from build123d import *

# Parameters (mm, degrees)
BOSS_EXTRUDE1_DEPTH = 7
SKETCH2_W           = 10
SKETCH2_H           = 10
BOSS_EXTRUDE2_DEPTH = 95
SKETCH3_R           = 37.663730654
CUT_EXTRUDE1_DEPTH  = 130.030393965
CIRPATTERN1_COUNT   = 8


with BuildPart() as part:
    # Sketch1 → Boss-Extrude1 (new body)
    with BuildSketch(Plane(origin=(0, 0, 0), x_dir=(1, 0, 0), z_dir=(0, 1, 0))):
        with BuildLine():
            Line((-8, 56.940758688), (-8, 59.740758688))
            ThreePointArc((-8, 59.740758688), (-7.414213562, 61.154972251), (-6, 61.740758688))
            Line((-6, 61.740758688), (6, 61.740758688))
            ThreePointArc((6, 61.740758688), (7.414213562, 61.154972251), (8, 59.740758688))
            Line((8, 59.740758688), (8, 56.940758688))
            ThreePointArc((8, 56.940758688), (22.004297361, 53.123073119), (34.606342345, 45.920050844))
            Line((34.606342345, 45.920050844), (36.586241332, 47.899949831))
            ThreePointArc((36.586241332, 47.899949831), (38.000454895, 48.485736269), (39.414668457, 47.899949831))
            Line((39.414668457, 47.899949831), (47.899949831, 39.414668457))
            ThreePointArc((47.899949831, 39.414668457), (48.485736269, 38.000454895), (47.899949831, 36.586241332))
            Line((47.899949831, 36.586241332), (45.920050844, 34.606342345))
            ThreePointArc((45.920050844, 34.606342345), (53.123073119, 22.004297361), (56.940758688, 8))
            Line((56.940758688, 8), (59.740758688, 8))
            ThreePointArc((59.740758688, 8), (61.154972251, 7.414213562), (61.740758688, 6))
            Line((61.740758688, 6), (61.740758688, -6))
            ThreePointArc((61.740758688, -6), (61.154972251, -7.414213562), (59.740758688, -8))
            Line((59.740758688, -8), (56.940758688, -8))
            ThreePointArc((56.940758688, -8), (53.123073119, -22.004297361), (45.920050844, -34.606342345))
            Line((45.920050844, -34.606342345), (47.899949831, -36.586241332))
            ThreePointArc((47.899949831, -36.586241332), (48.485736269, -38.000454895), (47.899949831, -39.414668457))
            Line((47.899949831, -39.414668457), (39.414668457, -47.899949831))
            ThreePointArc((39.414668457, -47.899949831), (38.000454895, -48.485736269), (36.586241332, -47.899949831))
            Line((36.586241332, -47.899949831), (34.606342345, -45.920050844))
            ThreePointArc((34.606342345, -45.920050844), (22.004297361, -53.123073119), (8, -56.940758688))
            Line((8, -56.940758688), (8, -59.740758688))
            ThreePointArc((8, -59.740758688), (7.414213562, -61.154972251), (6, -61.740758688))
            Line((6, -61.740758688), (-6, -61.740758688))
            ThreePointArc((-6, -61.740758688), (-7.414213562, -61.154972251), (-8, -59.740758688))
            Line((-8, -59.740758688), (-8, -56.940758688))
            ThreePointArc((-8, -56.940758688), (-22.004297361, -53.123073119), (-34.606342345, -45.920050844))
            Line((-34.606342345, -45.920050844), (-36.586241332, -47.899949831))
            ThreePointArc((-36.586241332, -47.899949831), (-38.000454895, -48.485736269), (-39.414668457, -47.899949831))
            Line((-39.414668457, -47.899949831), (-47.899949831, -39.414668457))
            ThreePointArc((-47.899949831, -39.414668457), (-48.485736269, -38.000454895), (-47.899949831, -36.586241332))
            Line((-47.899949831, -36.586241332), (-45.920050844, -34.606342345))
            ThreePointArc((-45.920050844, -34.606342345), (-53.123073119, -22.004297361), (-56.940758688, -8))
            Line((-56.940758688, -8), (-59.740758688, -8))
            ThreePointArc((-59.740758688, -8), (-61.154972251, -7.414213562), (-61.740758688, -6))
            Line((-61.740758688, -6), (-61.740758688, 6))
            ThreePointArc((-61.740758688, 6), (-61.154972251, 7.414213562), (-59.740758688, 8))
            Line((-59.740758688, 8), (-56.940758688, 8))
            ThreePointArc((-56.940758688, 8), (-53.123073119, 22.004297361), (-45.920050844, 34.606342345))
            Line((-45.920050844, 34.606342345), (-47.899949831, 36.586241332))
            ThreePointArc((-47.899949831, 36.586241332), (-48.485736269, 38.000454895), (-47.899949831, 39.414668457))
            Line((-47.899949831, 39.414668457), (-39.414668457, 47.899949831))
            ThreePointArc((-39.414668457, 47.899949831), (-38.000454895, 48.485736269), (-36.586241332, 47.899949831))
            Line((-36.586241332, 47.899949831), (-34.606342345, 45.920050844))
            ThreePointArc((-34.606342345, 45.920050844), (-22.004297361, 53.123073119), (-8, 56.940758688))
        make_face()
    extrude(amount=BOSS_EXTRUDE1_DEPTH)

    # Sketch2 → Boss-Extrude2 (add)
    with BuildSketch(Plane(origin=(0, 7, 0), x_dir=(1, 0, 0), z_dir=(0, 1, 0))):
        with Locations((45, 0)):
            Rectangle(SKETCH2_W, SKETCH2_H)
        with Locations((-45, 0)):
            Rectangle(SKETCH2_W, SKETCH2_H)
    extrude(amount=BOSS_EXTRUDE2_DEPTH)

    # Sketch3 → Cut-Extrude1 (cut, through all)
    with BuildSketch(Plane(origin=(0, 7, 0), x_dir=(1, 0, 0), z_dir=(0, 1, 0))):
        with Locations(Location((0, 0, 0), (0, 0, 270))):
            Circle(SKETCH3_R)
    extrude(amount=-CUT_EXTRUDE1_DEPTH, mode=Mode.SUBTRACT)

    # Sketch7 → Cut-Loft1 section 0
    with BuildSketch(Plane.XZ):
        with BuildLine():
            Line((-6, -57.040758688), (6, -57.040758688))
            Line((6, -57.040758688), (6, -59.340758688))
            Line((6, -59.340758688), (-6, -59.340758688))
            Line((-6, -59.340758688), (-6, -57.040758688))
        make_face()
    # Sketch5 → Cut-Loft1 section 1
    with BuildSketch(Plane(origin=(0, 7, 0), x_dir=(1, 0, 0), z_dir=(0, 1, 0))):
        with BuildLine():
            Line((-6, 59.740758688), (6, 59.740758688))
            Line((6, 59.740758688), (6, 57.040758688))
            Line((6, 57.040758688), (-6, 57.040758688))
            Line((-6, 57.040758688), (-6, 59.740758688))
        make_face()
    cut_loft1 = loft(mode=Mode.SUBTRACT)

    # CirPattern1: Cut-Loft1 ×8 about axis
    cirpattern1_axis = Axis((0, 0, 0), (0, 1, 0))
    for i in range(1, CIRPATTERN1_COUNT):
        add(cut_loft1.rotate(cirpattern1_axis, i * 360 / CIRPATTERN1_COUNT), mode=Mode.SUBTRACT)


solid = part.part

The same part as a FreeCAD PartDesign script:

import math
import FreeCAD as App
import Part
import Sketcher

doc = App.newDocument("Part")
body = doc.addObject("PartDesign::Body", "Body")

sketch1 = body.newObject("Sketcher::SketchObject", "Sketch")
sketch1.AttachmentSupport = (doc.getObject("XZ_Plane"), [""])
sketch1.MapMode = "FlatFace"
sketch1.addGeometry([
    Part.LineSegment(App.Vector(-8, -59.7, 0), App.Vector(-8, -56.9, 0)),
    Part.ArcOfCircle(Part.Circle(App.Vector(0, 0, 0), App.Vector(0, 0, 1), 57.5), math.radians(-127), math.radians(-98)),
    Part.LineSegment(App.Vector(-34.6, -45.9, 0), App.Vector(-36.6, -47.9, 0)),
    Part.ArcOfCircle(Part.Circle(App.Vector(-38, -46.5, 0), App.Vector(0, 0, 1), 2), math.radians(-135), math.radians(-45)),
    Part.LineSegment(App.Vector(-39.4, -47.9, 0), App.Vector(-47.9, -39.4, 0)),
    Part.ArcOfCircle(Part.Circle(App.Vector(-46.5, -38, 0), App.Vector(0, 0, 1), 2), math.radians(135), math.radians(225)),
    Part.LineSegment(App.Vector(-47.9, -36.6, 0), App.Vector(-45.9, -34.6, 0)),
    Part.ArcOfCircle(Part.Circle(App.Vector(0, 0, 0), App.Vector(0, 0, 1), 57.5), math.radians(-172), math.radians(-143)),
    Part.LineSegment(App.Vector(-56.9, -8, 0), App.Vector(-59.7, -8, 0)),
    Part.ArcOfCircle(Part.Circle(App.Vector(-59.7, -6, 0), App.Vector(0, 0, 1), 2), math.radians(180), math.radians(270)),
    Part.LineSegment(App.Vector(-61.7, -6, 0), App.Vector(-61.7, 6, 0)),
    Part.ArcOfCircle(Part.Circle(App.Vector(-59.7, 6, 0), App.Vector(0, 0, 1), 2), math.radians(90), math.radians(180)),
    Part.LineSegment(App.Vector(-59.7, 8, 0), App.Vector(-56.9, 8, 0)),
    Part.ArcOfCircle(Part.Circle(App.Vector(0, 0, 0), App.Vector(0, 0, 1), 57.5), math.radians(143), math.radians(172)),
    Part.LineSegment(App.Vector(-45.9, 34.6, 0), App.Vector(-47.9, 36.6, 0)),
    Part.ArcOfCircle(Part.Circle(App.Vector(-46.5, 38, 0), App.Vector(0, 0, 1), 2), math.radians(135), math.radians(225)),
    Part.LineSegment(App.Vector(-47.9, 39.4, 0), App.Vector(-39.4, 47.9, 0)),
    Part.ArcOfCircle(Part.Circle(App.Vector(-38, 46.5, 0), App.Vector(0, 0, 1), 2), math.radians(45), math.radians(135)),
    Part.LineSegment(App.Vector(-36.6, 47.9, 0), App.Vector(-34.6, 45.9, 0)),
    Part.ArcOfCircle(Part.Circle(App.Vector(0, 0, 0), App.Vector(0, 0, 1), 57.5), math.radians(98), math.radians(127)),
    Part.LineSegment(App.Vector(-8, 56.9, 0), App.Vector(-8, 59.7, 0)),
    Part.ArcOfCircle(Part.Circle(App.Vector(-6, 59.7, 0), App.Vector(0, 0, 1), 2), math.radians(90), math.radians(180)),
    Part.LineSegment(App.Vector(-6, 61.7, 0), App.Vector(6, 61.7, 0)),
    Part.ArcOfCircle(Part.Circle(App.Vector(6, 59.7, 0), App.Vector(0, 0, 1), 2), math.radians(0), math.radians(90)),
    Part.LineSegment(App.Vector(8, 59.7, 0), App.Vector(8, 56.9, 0)),
    Part.ArcOfCircle(Part.Circle(App.Vector(0, 0, 0), App.Vector(0, 0, 1), 57.5), math.radians(53), math.radians(82)),
    Part.LineSegment(App.Vector(34.6, 45.9, 0), App.Vector(36.6, 47.9, 0)),
    Part.ArcOfCircle(Part.Circle(App.Vector(38, 46.5, 0), App.Vector(0, 0, 1), 2), math.radians(45), math.radians(135)),
    Part.LineSegment(App.Vector(39.4, 47.9, 0), App.Vector(47.9, 39.4, 0)),
    Part.ArcOfCircle(Part.Circle(App.Vector(46.5, 38, 0), App.Vector(0, 0, 1), 2), math.radians(-45), math.radians(45)),
    Part.LineSegment(App.Vector(47.9, 36.6, 0), App.Vector(45.9, 34.6, 0)),
    Part.ArcOfCircle(Part.Circle(App.Vector(0, 0, 0), App.Vector(0, 0, 1), 57.5), math.radians(8), math.radians(37)),
    Part.LineSegment(App.Vector(56.9, 8, 0), App.Vector(59.7, 8, 0)),
    Part.ArcOfCircle(Part.Circle(App.Vector(59.7, 6, 0), App.Vector(0, 0, 1), 2), math.radians(0), math.radians(90)),
    Part.LineSegment(App.Vector(61.7, 6, 0), App.Vector(61.7, -6, 0)),
    Part.ArcOfCircle(Part.Circle(App.Vector(59.7, -6, 0), App.Vector(0, 0, 1), 2), math.radians(-90), math.radians(0)),
    Part.LineSegment(App.Vector(59.7, -8, 0), App.Vector(56.9, -8, 0)),
    Part.ArcOfCircle(Part.Circle(App.Vector(0, 0, 0), App.Vector(0, 0, 1), 57.5), math.radians(-37), math.radians(-8)),
    Part.LineSegment(App.Vector(45.9, -34.6, 0), App.Vector(47.9, -36.6, 0)),
    Part.ArcOfCircle(Part.Circle(App.Vector(46.5, -38, 0), App.Vector(0, 0, 1), 2), math.radians(-45), math.radians(45)),
    Part.LineSegment(App.Vector(47.9, -39.4, 0), App.Vector(39.4, -47.9, 0)),
    Part.ArcOfCircle(Part.Circle(App.Vector(38, -46.5, 0), App.Vector(0, 0, 1), 2), math.radians(-135), math.radians(-45)),
    Part.LineSegment(App.Vector(36.6, -47.9, 0), App.Vector(34.6, -45.9, 0)),
    Part.ArcOfCircle(Part.Circle(App.Vector(0, 0, 0), App.Vector(0, 0, 1), 57.5), math.radians(-82), math.radians(-53)),
    Part.LineSegment(App.Vector(8, -56.9, 0), App.Vector(8, -59.7, 0)),
    Part.ArcOfCircle(Part.Circle(App.Vector(6, -59.7, 0), App.Vector(0, 0, 1), 2), math.radians(-90), math.radians(0)),
    Part.LineSegment(App.Vector(6, -61.7, 0), App.Vector(-6, -61.7, 0)),
    Part.ArcOfCircle(Part.Circle(App.Vector(-6, -59.7, 0), App.Vector(0, 0, 1), 2), math.radians(180), math.radians(270)),
], False)
sketch1.addConstraint([
    Sketcher.Constraint("Coincident", 0, 2, 1, 2),
    Sketcher.Constraint("Coincident", 1, 1, 2, 1),
    Sketcher.Constraint("Tangent", 2, 2, 3, 2),
    Sketcher.Constraint("Tangent", 3, 1, 4, 1),
    Sketcher.Constraint("Tangent", 4, 2, 5, 2),
    Sketcher.Constraint("Tangent", 5, 1, 6, 1),
    Sketcher.Constraint("Coincident", 6, 2, 7, 2),
    Sketcher.Constraint("Coincident", 7, 1, 8, 1),
    Sketcher.Constraint("Tangent", 8, 2, 9, 2),
    Sketcher.Constraint("Tangent", 9, 1, 10, 1),
    Sketcher.Constraint("Tangent", 10, 2, 11, 2),
    Sketcher.Constraint("Tangent", 11, 1, 12, 1),
    Sketcher.Constraint("Coincident", 12, 2, 13, 2),
    Sketcher.Constraint("Coincident", 13, 1, 14, 1),
    Sketcher.Constraint("Tangent", 14, 2, 15, 2),
    Sketcher.Constraint("Tangent", 15, 1, 16, 1),
    Sketcher.Constraint("Tangent", 16, 2, 17, 2),
    Sketcher.Constraint("Tangent", 17, 1, 18, 1),
    Sketcher.Constraint("Coincident", 18, 2, 19, 2),
    Sketcher.Constraint("Coincident", 19, 1, 20, 1),
    Sketcher.Constraint("Tangent", 20, 2, 21, 2),
    Sketcher.Constraint("Tangent", 21, 1, 22, 1),
    Sketcher.Constraint("Tangent", 22, 2, 23, 2),
    Sketcher.Constraint("Tangent", 23, 1, 24, 1),
    Sketcher.Constraint("Coincident", 24, 2, 25, 2),
    Sketcher.Constraint("Coincident", 25, 1, 26, 1),
    Sketcher.Constraint("Tangent", 26, 2, 27, 2),
    Sketcher.Constraint("Tangent", 27, 1, 28, 1),
    Sketcher.Constraint("Tangent", 28, 2, 29, 2),
    Sketcher.Constraint("Tangent", 29, 1, 30, 1),
    Sketcher.Constraint("Coincident", 30, 2, 31, 2),
    Sketcher.Constraint("Coincident", 31, 1, 32, 1),
    Sketcher.Constraint("Tangent", 32, 2, 33, 2),
    Sketcher.Constraint("Tangent", 33, 1, 34, 1),
    Sketcher.Constraint("Tangent", 34, 2, 35, 2),
    Sketcher.Constraint("Tangent", 35, 1, 36, 1),
    Sketcher.Constraint("Coincident", 36, 2, 37, 2),
    Sketcher.Constraint("Coincident", 37, 1, 38, 1),
    Sketcher.Constraint("Tangent", 38, 2, 39, 2),
    Sketcher.Constraint("Tangent", 39, 1, 40, 1),
    Sketcher.Constraint("Tangent", 40, 2, 41, 2),
    Sketcher.Constraint("Tangent", 41, 1, 42, 1),
    Sketcher.Constraint("Coincident", 42, 2, 43, 2),
    Sketcher.Constraint("Coincident", 43, 1, 44, 1),
    Sketcher.Constraint("Tangent", 44, 2, 45, 2),
    Sketcher.Constraint("Tangent", 45, 1, 46, 1),
    Sketcher.Constraint("Tangent", 46, 2, 47, 2),
    Sketcher.Constraint("Tangent", 47, 1, 0, 1),
    Sketcher.Constraint("Vertical", 0),
    Sketcher.Constraint("Horizontal", 8),
    Sketcher.Constraint("Vertical", 10),
    Sketcher.Constraint("Horizontal", 12),
    Sketcher.Constraint("Vertical", 20),
    Sketcher.Constraint("Horizontal", 22),
    Sketcher.Constraint("Vertical", 24),
    Sketcher.Constraint("Horizontal", 32),
    Sketcher.Constraint("Vertical", 34),
    Sketcher.Constraint("Horizontal", 36),
    Sketcher.Constraint("Vertical", 44),
    Sketcher.Constraint("Horizontal", 46),
    Sketcher.Constraint("Coincident", 1, 3, -1, 1),
    Sketcher.Constraint("Coincident", 7, 3, -1, 1),
    Sketcher.Constraint("Coincident", 13, 3, -1, 1),
    Sketcher.Constraint("Coincident", 19, 3, -1, 1),
    Sketcher.Constraint("Coincident", 25, 3, -1, 1),
    Sketcher.Constraint("Coincident", 31, 3, -1, 1),
    Sketcher.Constraint("Coincident", 37, 3, -1, 1),
    Sketcher.Constraint("Coincident", 43, 3, -1, 1),
    Sketcher.Constraint("Equal", 3, 5),
    Sketcher.Constraint("Equal", 1, 7),
    Sketcher.Constraint("Equal", 5, 9),
    Sketcher.Constraint("Equal", 9, 11),
    Sketcher.Constraint("Equal", 7, 13),
    Sketcher.Constraint("Equal", 11, 15),
    Sketcher.Constraint("Equal", 15, 17),
    Sketcher.Constraint("Equal", 13, 19),
    Sketcher.Constraint("Equal", 17, 21),
    Sketcher.Constraint("Equal", 21, 23),
    Sketcher.Constraint("Equal", 19, 25),
    Sketcher.Constraint("Equal", 23, 27),
    Sketcher.Constraint("Equal", 27, 29),
    Sketcher.Constraint("Equal", 25, 31),
    Sketcher.Constraint("Equal", 29, 33),
    Sketcher.Constraint("Equal", 33, 35),
    Sketcher.Constraint("Equal", 31, 37),
    Sketcher.Constraint("Equal", 35, 39),
    Sketcher.Constraint("Equal", 39, 41),
    Sketcher.Constraint("Equal", 37, 43),
    Sketcher.Constraint("Equal", 41, 45),
    Sketcher.Constraint("Equal", 45, 47),
    Sketcher.Constraint("Symmetric", 3, 3, 27, 3, -1, 1),
    Sketcher.Constraint("Symmetric", 5, 3, 29, 3, -1, 1),
    Sketcher.Constraint("Symmetric", 9, 3, 33, 3, -1, 1),
    Sketcher.Constraint("Symmetric", 15, 3, 39, 3, -1, 1),
    Sketcher.Constraint("Symmetric", 17, 3, 41, 3, -1, 1),
    Sketcher.Constraint("Symmetric", 21, 3, 45, 3, -1, 1),
    Sketcher.Constraint("Symmetric", 17, 3, 27, 3, -2),
    Sketcher.Constraint("Symmetric", 15, 3, 29, 3, -2),
    Sketcher.Constraint("Perpendicular", 2, 4),
    Sketcher.Constraint("Perpendicular", 4, 6),
    Sketcher.Constraint("Perpendicular", 6, 14),
    Sketcher.Constraint("Perpendicular", 14, 16),
    Sketcher.Constraint("Perpendicular", 16, 18),
    Sketcher.Constraint("Perpendicular", 18, 26),
    Sketcher.Constraint("Perpendicular", 28, 30),
    Sketcher.Constraint("Perpendicular", 30, 38),
    Sketcher.Constraint("Perpendicular", 40, 42),
    Sketcher.Constraint("Horizontal", 11, 3, 33, 3),
    Sketcher.Constraint("Horizontal", 9, 3, 35, 3),
    Sketcher.Constraint("Horizontal", 19, 1, 24, 2),
    Sketcher.Constraint("Horizontal", 0, 2, 43, 1),
    Sketcher.Constraint("Equal", 36, 0),
    Sketcher.Constraint("Equal", 46, 10),
    Sketcher.Constraint("Equal", 2, 6),
    Sketcher.Constraint("Radius", 3, 2.0),
    Sketcher.Constraint("Radius", 1, 57.5),
    Sketcher.Constraint("DistanceX", 22, 1, 22, 2, 12.0),
    Sketcher.Constraint("Distance", 4, 12.0),
    Sketcher.Constraint("DistanceX", 8, 2, 8, 1, 2.8),
    Sketcher.Constraint("Distance", 2, 2.8),
])
pad1 = body.newObject("PartDesign::Pad", "Pad")
pad1.Profile = sketch1
pad1.Length = 7
pad1.Reversed = True

sketch2 = body.newObject("Sketcher::SketchObject", "Sketch001")
sketch2.AttachmentSupport = (doc.getObject("XZ_Plane"), [""])
sketch2.MapMode = "FlatFace"
sketch2.AttachmentOffset = App.Placement(App.Vector(0, 0, -7), App.Rotation())
sketch2.addGeometry([
    Part.LineSegment(App.Vector(40, -5, 0), App.Vector(40, 5, 0)),
    Part.LineSegment(App.Vector(40, 5, 0), App.Vector(50, 5, 0)),
    Part.LineSegment(App.Vector(50, 5, 0), App.Vector(50, -5, 0)),
    Part.LineSegment(App.Vector(50, -5, 0), App.Vector(40, -5, 0)),
    Part.LineSegment(App.Vector(-50, -5, 0), App.Vector(-50, 5, 0)),
    Part.LineSegment(App.Vector(-50, 5, 0), App.Vector(-40, 5, 0)),
    Part.LineSegment(App.Vector(-40, 5, 0), App.Vector(-40, -5, 0)),
    Part.LineSegment(App.Vector(-40, -5, 0), App.Vector(-50, -5, 0)),
], False)
sketch2.addConstraint([
    Sketcher.Constraint("Coincident", 0, 2, 1, 1),
    Sketcher.Constraint("Coincident", 1, 2, 2, 1),
    Sketcher.Constraint("Coincident", 2, 2, 3, 1),
    Sketcher.Constraint("Coincident", 3, 2, 0, 1),
    Sketcher.Constraint("Coincident", 4, 2, 5, 1),
    Sketcher.Constraint("Coincident", 5, 2, 6, 1),
    Sketcher.Constraint("Coincident", 6, 2, 7, 1),
    Sketcher.Constraint("Coincident", 7, 2, 4, 1),
    Sketcher.Constraint("Vertical", 0),
    Sketcher.Constraint("Horizontal", 1),
    Sketcher.Constraint("Vertical", 2),
    Sketcher.Constraint("Horizontal", 3),
    Sketcher.Constraint("Vertical", 4),
    Sketcher.Constraint("Horizontal", 5),
    Sketcher.Constraint("Vertical", 6),
    Sketcher.Constraint("Horizontal", 7),
    Sketcher.Constraint("Symmetric", 2, 2, 4, 2, -1, 1),
    Sketcher.Constraint("Symmetric", 0, 2, 6, 2, -1, 1),
    Sketcher.Constraint("Horizontal", 1, 2, 4, 2),
    Sketcher.Constraint("Equal", 7, 0),
    Sketcher.Constraint("DistanceX", 1, 1, 1, 2, 10.0),
    Sketcher.Constraint("DistanceX", -1, 1, 0, 2, 40.0),
])
pad2 = body.newObject("PartDesign::Pad", "Pad001")
pad2.Profile = sketch2
pad2.Length = 95
pad2.Reversed = True

sketch3 = body.newObject("Sketcher::SketchObject", "Sketch002")
sketch3.AttachmentSupport = (doc.getObject("XZ_Plane"), [""])
sketch3.MapMode = "FlatFace"
sketch3.AttachmentOffset = App.Placement(App.Vector(0, 0, -7), App.Rotation())
sketch3.addGeometry(Part.Circle(App.Vector(0, 0, 0), App.Vector(0, 0, 1), 38), False)
sketch3.addConstraint([
    Sketcher.Constraint("Coincident", 0, 3, -1, 1),
    Sketcher.Constraint("Diameter", 0, 75.327461),
])
pocket1 = body.newObject("PartDesign::Pocket", "Pocket")
pocket1.Profile = sketch3
pocket1.Type = "ThroughAll"
pocket1.Reversed = True

sketch4 = body.newObject("Sketcher::SketchObject", "Sketch003")
sketch4.AttachmentSupport = (doc.getObject("XZ_Plane"), [""])
sketch4.MapMode = "FlatFace"
sketch4.addGeometry([
    Part.LineSegment(App.Vector(6, -57, 0), App.Vector(-6, -57, 0)),
    Part.LineSegment(App.Vector(-6, -57, 0), App.Vector(-6, -59.3, 0)),
    Part.LineSegment(App.Vector(-6, -59.3, 0), App.Vector(6, -59.3, 0)),
    Part.LineSegment(App.Vector(6, -59.3, 0), App.Vector(6, -57, 0)),
], False)
sketch4.addConstraint([
    Sketcher.Constraint("Coincident", 0, 2, 1, 1),
    Sketcher.Constraint("Coincident", 1, 2, 2, 1),
    Sketcher.Constraint("Coincident", 2, 2, 3, 1),
    Sketcher.Constraint("Coincident", 3, 2, 0, 1),
    Sketcher.Constraint("Horizontal", 0),
    Sketcher.Constraint("Vertical", 1),
    Sketcher.Constraint("Horizontal", 2),
    Sketcher.Constraint("Vertical", 3),
    Sketcher.Constraint("DistanceX", 0, 2, 0, 1, 12.0),
    Sketcher.Constraint("DistanceY", 1, 2, 1, 1, 2.3),
    Sketcher.Constraint("DistanceX", 0, 2, -1, 1, 6.0),
    Sketcher.Constraint("DistanceY", 0, 2, -1, 1, 57.040759),
])

sketch5 = body.newObject("Sketcher::SketchObject", "Sketch004")
sketch5.AttachmentSupport = (doc.getObject("XZ_Plane"), [""])
sketch5.MapMode = "FlatFace"
sketch5.AttachmentOffset = App.Placement(App.Vector(0, 0, -7), App.Rotation())
sketch5.addGeometry([
    Part.LineSegment(App.Vector(6, -59.7, 0), App.Vector(-6, -59.7, 0)),
    Part.LineSegment(App.Vector(-6, -59.7, 0), App.Vector(-6, -57, 0)),
    Part.LineSegment(App.Vector(-6, -57, 0), App.Vector(6, -57, 0)),
    Part.LineSegment(App.Vector(6, -57, 0), App.Vector(6, -59.7, 0)),
], False)
sketch5.addConstraint([
    Sketcher.Constraint("Coincident", 0, 2, 1, 1),
    Sketcher.Constraint("Coincident", 1, 2, 2, 1),
    Sketcher.Constraint("Coincident", 2, 2, 3, 1),
    Sketcher.Constraint("Coincident", 3, 2, 0, 1),
    Sketcher.Constraint("Horizontal", 0),
    Sketcher.Constraint("Vertical", 1),
    Sketcher.Constraint("Horizontal", 2),
    Sketcher.Constraint("Vertical", 3),
    Sketcher.Constraint("DistanceX", 0, 2, 0, 1, 12.0),
    Sketcher.Constraint("DistanceY", 1, 1, 1, 2, 2.7),
    Sketcher.Constraint("DistanceX", 0, 2, -1, 1, 6.0),
    Sketcher.Constraint("DistanceY", 0, 2, -1, 1, 59.740759),
])

subtractiveloft = body.newObject("PartDesign::SubtractiveLoft", "SubtractiveLoft")
subtractiveloft.Profile = sketch4
subtractiveloft.Sections = [sketch5]
doc.recompute()

polarpattern = body.newObject("PartDesign::PolarPattern", "PolarPattern")
polarpattern.Originals = [subtractiveloft]
polarpattern.Axis = (doc.getObject("Y_Axis"), [""])
polarpattern.Angle = 360
polarpattern.Occurrences = 8
body.Tip = polarpattern

doc.recompute()
